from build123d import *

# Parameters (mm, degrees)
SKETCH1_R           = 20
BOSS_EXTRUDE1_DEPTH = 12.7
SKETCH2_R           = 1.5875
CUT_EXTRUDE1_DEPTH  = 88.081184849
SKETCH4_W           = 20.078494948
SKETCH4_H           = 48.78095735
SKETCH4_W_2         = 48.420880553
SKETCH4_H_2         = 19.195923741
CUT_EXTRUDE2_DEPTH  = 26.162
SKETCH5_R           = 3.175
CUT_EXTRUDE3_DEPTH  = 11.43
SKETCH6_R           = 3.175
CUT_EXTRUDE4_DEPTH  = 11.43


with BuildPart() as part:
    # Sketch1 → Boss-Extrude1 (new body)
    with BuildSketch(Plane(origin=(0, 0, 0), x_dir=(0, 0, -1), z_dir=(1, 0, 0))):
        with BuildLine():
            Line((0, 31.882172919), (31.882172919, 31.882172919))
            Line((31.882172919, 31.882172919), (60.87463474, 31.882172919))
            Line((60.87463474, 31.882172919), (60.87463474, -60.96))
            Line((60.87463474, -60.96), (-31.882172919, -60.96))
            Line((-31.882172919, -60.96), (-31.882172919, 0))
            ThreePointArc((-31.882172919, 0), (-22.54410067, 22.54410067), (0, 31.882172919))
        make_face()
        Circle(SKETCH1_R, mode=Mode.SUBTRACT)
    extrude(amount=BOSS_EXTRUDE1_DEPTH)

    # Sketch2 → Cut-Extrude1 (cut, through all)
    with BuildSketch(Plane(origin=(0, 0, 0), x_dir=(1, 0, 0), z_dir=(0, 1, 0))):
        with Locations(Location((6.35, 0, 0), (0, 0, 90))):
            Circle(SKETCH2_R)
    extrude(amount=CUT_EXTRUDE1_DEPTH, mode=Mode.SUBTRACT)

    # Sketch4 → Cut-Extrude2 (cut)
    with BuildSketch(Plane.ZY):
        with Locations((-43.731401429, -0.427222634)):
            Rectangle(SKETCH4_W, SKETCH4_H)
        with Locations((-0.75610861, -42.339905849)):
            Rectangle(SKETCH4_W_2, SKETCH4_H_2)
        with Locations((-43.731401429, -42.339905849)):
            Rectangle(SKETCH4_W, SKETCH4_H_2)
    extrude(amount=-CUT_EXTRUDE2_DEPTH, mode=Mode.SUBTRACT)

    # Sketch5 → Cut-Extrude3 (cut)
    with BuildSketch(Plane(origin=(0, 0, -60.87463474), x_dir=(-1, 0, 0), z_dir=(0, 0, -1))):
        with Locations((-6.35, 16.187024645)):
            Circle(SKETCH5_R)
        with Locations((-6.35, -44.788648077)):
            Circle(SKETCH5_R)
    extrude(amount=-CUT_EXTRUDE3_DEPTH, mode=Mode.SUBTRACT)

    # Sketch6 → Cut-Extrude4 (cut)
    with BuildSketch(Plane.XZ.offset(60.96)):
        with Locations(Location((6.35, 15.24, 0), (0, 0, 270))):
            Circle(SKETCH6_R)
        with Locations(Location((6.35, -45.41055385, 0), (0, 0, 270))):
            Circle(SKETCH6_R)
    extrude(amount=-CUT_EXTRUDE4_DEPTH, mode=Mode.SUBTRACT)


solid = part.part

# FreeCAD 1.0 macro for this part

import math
import FreeCAD as App
import Part
import Sketcher
from FreeCAD import Vector
Q = App.Units.Quantity

doc = App.newDocument("Part")
body = doc.addObject("PartDesign::Body", "Body")

# Sketch on YZ plane
sketch1 = body.newObject("Sketcher::SketchObject", "Sketch")
sketch1.AttachmentSupport = (doc.getObject("YZ_Plane"), [""])
sketch1.MapMode = "FlatFace"
sketch1.addGeometry([
    Part.LineSegment(Vector(32, -61, 0), Vector(32, 0, 0)),  # 0
    Part.ArcOfCircle(Part.Circle(Vector(0, 0, 0), Vector(0, 0, 1), 32), math.radians(0), math.radians(90)),  # 1
    Part.LineSegment(Vector(0, 32, 0), Vector(-61, 32, 0)),  # 2
    Part.LineSegment(Vector(-61, 32, 0), Vector(-61, -61, 0)),  # 3
    Part.LineSegment(Vector(-61, -61, 0), Vector(32, -61, 0)),  # 4
    Part.Circle(Vector(0, 0, 0), Vector(0, 0, 1), 20),  # 5
], False)
sketch1.addConstraint([
    Sketcher.Constraint("Tangent", 0, 2, 1, 1),
    Sketcher.Constraint("Tangent", 1, 2, 2, 1),
    Sketcher.Constraint("Coincident", 2, 2, 3, 1),
    Sketcher.Constraint("Coincident", 3, 2, 4, 1),
    Sketcher.Constraint("Coincident", 4, 2, 0, 1),
    Sketcher.Constraint("Vertical", 0),
    Sketcher.Constraint("Horizontal", 2),
    Sketcher.Constraint("Vertical", 3),
    Sketcher.Constraint("Horizontal", 4),
    Sketcher.Constraint("Coincident", 1, 3, -1, 1),
    Sketcher.Constraint("Coincident", 5, 3, -1, 1),
    Sketcher.Constraint("DistanceX", 2, 2, 2, 1, Q("2.4 in")),
    Sketcher.Constraint("Diameter", 5, 40.0),
    Sketcher.Constraint("Radius", 1, 31.882173),
    Sketcher.Constraint("DistanceY", 0, 1, 0, 2, 60.874635),
])
pad1 = body.newObject("PartDesign::Pad", "Pad")
pad1.Profile = sketch1
pad1.Length = Q("0.5 in")

# Sketch on XZ plane
sketch2 = body.newObject("Sketcher::SketchObject", "Sketch001")
sketch2.AttachmentSupport = (doc.getObject("XZ_Plane"), [""])
sketch2.MapMode = "FlatFace"
sketch2.addGeometry(Part.Circle(Vector(6.3, 0, 0), Vector(0, 0, 1), 1.6), False)
sketch2.addConstraint([
    Sketcher.Constraint("PointOnObject", 0, 3, -1),
    Sketcher.Constraint("Diameter", 0, Q("0.125 in")),
    Sketcher.Constraint("DistanceX", -1, 1, 0, 3, Q("0.25 in")),
])
pocket1 = body.newObject("PartDesign::Pocket", "Pocket")
pocket1.Profile = sketch2
pocket1.Type = "ThroughAll"

# Sketch on YZ plane
sketch3 = body.newObject("Sketcher::SketchObject", "Sketch002")
sketch3.AttachmentSupport = (doc.getObject("YZ_Plane"), [""])
sketch3.MapMode = "FlatFace"
sketch3.addGeometry([
    Part.LineSegment(Vector(24, -54, 0), Vector(-25, -54, 0)),  # 0
    Part.LineSegment(Vector(-25, -54, 0), Vector(-25, -34, 0)),  # 1
    Part.LineSegment(Vector(-25, -34, 0), Vector(24, -34, 0)),  # 2
    Part.LineSegment(Vector(24, -34, 0), Vector(24, -54, 0)),  # 3
    Part.LineSegment(Vector(-33, -25, 0), Vector(-52, -25, 0)),  # 4
    Part.LineSegment(Vector(-52, -25, 0), Vector(-52, 23, 0)),  # 5
    Part.LineSegment(Vector(-52, 23, 0), Vector(-33, 23, 0)),  # 6
    Part.LineSegment(Vector(-33, 23, 0), Vector(-33, -25, 0)),  # 7
    Part.LineSegment(Vector(-33, -54, 0), Vector(-52, -54, 0)),  # 8
    Part.LineSegment(Vector(-52, -54, 0), Vector(-52, -34, 0)),  # 9
    Part.LineSegment(Vector(-52, -34, 0), Vector(-33, -34, 0)),  # 10
    Part.LineSegment(Vector(-33, -34, 0), Vector(-33, -54, 0)),  # 11
], False)
sketch3.addConstraint([
    Sketcher.Constraint("Coincident", 0, 2, 1, 1),
    Sketcher.Constraint("Coincident", 1, 2, 2, 1),
    Sketcher.Constraint("Coincident", 2, 2, 3, 1),
    Sketcher.Constraint("Coincident", 3, 2, 0, 1),
    Sketcher.Constraint("Coincident", 4, 2, 5, 1),
    Sketcher.Constraint("Coincident", 5, 2, 6, 1),
    Sketcher.Constraint("Coincident", 6, 2, 7, 1),
    Sketcher.Constraint("Coincident", 7, 2, 4, 1),
    Sketcher.Constraint("Coincident", 8, 2, 9, 1),
    Sketcher.Constraint("Coincident", 9, 2, 10, 1),
    Sketcher.Constraint("Coincident", 10, 2, 11, 1),
    Sketcher.Constraint("Coincident", 11, 2, 8, 1),
    Sketcher.Constraint("Horizontal", 0),
    Sketcher.Constraint("Vertical", 1),
    Sketcher.Constraint("Horizontal", 2),
    Sketcher.Constraint("Vertical", 3),
    Sketcher.Constraint("Horizontal", 4),
    Sketcher.Constraint("Vertical", 5),
    Sketcher.Constraint("Horizontal", 6),
    Sketcher.Constraint("Vertical", 7),
    Sketcher.Constraint("Horizontal", 8),
    Sketcher.Constraint("Vertical", 9),
    Sketcher.Constraint("Horizontal", 10),
    Sketcher.Constraint("Vertical", 11),
    Sketcher.Constraint("Horizontal", 3, 2, 8, 2),
    Sketcher.Constraint("Horizontal", 2, 2, 9, 2),
    Sketcher.Constraint("Vertical", 5, 2, 8, 2),
    Sketcher.Constraint("Vertical", 7, 2, 10, 2),
    Sketcher.Constraint("DistanceY", 5, 1, 5, 2, 48.420881),
    Sketcher.Constraint("DistanceX", 0, 2, -1, 1, 24.817701),
    Sketcher.Constraint("DistanceY", 0, 2, 4, 2, 28.8041),
    Sketcher.Constraint("DistanceX", 6, 2, 2, 2, 56.7052),
    Sketcher.Constraint("DistanceX", 0, 2, 0, 1, 48.780957),
    Sketcher.Constraint("DistanceX", 4, 2, 4, 1, 19.195924),
    Sketcher.Constraint("DistanceY", 1, 1, 1, 2, 20.078495),
    Sketcher.Constraint("DistanceY", 0, 2, -1, 1, 53.770649),
])
pocket2 = body.newObject("PartDesign::Pocket", "Pocket001")
pocket2.Profile = sketch3
pocket2.Length = Q("1.03 in")
pocket2.Reversed = True

# Sketch on XY plane
sketch4 = body.newObject("Sketcher::SketchObject", "Sketch003")
sketch4.AttachmentSupport = (doc.getObject("XY_Plane"), [""])
sketch4.MapMode = "FlatFace"
sketch4.AttachmentOffset = App.Placement(Vector(0, 0, -60.874635), App.Rotation())
sketch4.addGeometry([
    Part.Circle(Vector(6.3, 16.2, 0), Vector(0, 0, 1), 3.2),
    Part.Circle(Vector(6.3, -44.8, 0), Vector(0, 0, 1), 3.2),
], False)
sketch4.addConstraint([
    Sketcher.Constraint("Equal", 0, 1),
    Sketcher.Constraint("Vertical", 0, 3, 1, 3),
    Sketcher.Constraint("Diameter", 0, Q("0.25 in")),
    Sketcher.Constraint("DistanceX", -1, 1, 0, 3, Q("0.25 in")),
    Sketcher.Constraint("DistanceY", 1, 3, -1, 1, 44.788648),
    Sketcher.Constraint("DistanceY", -1, 1, 0, 3, 16.187025),
])
pocket3 = body.newObject("PartDesign::Pocket", "Pocket002")
pocket3.Profile = sketch4
pocket3.Length = Q("0.45 in")
pocket3.Reversed = True

# Sketch on XZ plane
sketch5 = body.newObject("Sketcher::SketchObject", "Sketch004")
sketch5.AttachmentSupport = (doc.getObject("XZ_Plane"), [""])
sketch5.MapMode = "FlatFace"
sketch5.AttachmentOffset = App.Placement(Vector(0, 0, 2.4 * 25.4), App.Rotation())
sketch5.addGeometry([
    Part.Circle(Vector(6.3, 15.2, 0), Vector(0, 0, 1), 3.2),
    Part.Circle(Vector(6.3, -45.4, 0), Vector(0, 0, 1), 3.2),
], False)
sketch5.addConstraint([
    Sketcher.Constraint("Equal", 0, 1),
    Sketcher.Constraint("Vertical", 0, 3, 1, 3),
    Sketcher.Constraint("Diameter", 0, Q("0.25 in")),
    Sketcher.Constraint("DistanceY", -1, 1, 0, 3, Q("0.6 in")),
    Sketcher.Constraint("DistanceX", -1, 1, 0, 3, Q("0.25 in")),
    Sketcher.Constraint("DistanceY", 1, 3, -1, 1, 45.410554),
])
pocket4 = body.newObject("PartDesign::Pocket", "Pocket003")
pocket4.Profile = sketch5
pocket4.Length = Q("0.45 in")

doc.recompute()
